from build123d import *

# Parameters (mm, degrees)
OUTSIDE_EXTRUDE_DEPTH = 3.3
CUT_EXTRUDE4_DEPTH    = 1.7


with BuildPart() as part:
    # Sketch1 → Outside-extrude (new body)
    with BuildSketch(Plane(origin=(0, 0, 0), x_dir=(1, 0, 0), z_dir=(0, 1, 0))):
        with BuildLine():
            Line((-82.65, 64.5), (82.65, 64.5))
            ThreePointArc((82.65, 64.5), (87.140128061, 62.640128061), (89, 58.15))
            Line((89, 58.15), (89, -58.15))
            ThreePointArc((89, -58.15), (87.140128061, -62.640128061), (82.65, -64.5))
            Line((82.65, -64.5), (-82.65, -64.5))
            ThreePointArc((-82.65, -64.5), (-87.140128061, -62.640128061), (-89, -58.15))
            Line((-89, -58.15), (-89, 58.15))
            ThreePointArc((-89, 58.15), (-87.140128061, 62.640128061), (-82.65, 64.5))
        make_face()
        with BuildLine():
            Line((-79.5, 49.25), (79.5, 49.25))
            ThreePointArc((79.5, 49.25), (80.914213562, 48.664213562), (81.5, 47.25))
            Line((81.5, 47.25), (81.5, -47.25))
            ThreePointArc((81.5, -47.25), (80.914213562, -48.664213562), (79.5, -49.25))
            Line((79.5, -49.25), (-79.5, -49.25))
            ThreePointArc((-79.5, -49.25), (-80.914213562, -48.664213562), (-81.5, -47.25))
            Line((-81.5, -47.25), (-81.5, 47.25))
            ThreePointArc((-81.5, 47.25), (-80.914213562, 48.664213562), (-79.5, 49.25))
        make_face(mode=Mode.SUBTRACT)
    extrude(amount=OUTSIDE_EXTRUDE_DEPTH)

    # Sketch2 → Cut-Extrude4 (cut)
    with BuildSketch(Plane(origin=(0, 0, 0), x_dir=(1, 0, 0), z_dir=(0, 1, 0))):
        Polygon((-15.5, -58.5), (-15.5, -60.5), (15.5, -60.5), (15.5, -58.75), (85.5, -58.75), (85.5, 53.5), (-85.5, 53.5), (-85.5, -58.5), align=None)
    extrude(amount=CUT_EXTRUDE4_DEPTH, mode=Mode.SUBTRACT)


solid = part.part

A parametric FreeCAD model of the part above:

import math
import FreeCAD as App
import Part
import Sketcher
Q = App.Units.Quantity

doc = App.newDocument("Part")
body = doc.addObject("PartDesign::Body", "Body")

# Sketch on XZ plane
sketch1 = doc.addObject("Sketcher::SketchObject", "Sketch")
body.addObject(sketch1)
sketch1.AttachmentSupport = (doc.XZ_Plane, [""])
sketch1.MapMode = "FlatFace"
sketch1.addGeometry(Part.LineSegment(App.Vector(82.65, -64.5, 0), App.Vector(-82.65, -64.5, 0)), False)
sketch1.addGeometry(Part.ArcOfCircle(Part.Circle(App.Vector(-82.65, -58.15, 0), App.Vector(0, 0, 1), 6.35), math.radians(180), math.radians(270)), False)
sketch1.addGeometry(Part.LineSegment(App.Vector(-89, -58.15, 0), App.Vector(-89, 58.15, 0)), False)
sketch1.addGeometry(Part.ArcOfCircle(Part.Circle(App.Vector(-82.65, 58.15, 0), App.Vector(0, 0, 1), 6.35), math.radians(90), math.radians(180)), False)
sketch1.addGeometry(Part.LineSegment(App.Vector(-82.65, 64.5, 0), App.Vector(82.65, 64.5, 0)), False)
sketch1.addGeometry(Part.ArcOfCircle(Part.Circle(App.Vector(82.65, 58.15, 0), App.Vector(0, 0, 1), 6.35), math.radians(0), math.radians(90)), False)
sketch1.addGeometry(Part.LineSegment(App.Vector(89, 58.15, 0), App.Vector(89, -58.15, 0)), False)
sketch1.addGeometry(Part.ArcOfCircle(Part.Circle(App.Vector(82.65, -58.15, 0), App.Vector(0, 0, 1), 6.35), math.radians(-90), math.radians(0)), False)
sketch1.addGeometry(Part.LineSegment(App.Vector(-79.5, -49.25, 0), App.Vector(79.5, -49.25, 0)), False)
sketch1.addGeometry(Part.ArcOfCircle(Part.Circle(App.Vector(79.5, -47.25, 0), App.Vector(0, 0, 1), 2), math.radians(-90), math.radians(0)), False)
sketch1.addGeometry(Part.LineSegment(App.Vector(81.5, -47.25, 0), App.Vector(81.5, 47.25, 0)), False)
sketch1.addGeometry(Part.ArcOfCircle(Part.Circle(App.Vector(79.5, 47.25, 0), App.Vector(0, 0, 1), 2), math.radians(0), math.radians(90)), False)
sketch1.addGeometry(Part.LineSegment(App.Vector(79.5, 49.25, 0), App.Vector(-79.5, 49.25, 0)), False)
sketch1.addGeometry(Part.ArcOfCircle(Part.Circle(App.Vector(-79.5, 47.25, 0), App.Vector(0, 0, 1), 2), math.radians(90), math.radians(180)), False)
sketch1.addGeometry(Part.LineSegment(App.Vector(-81.5, 47.25, 0), App.Vector(-81.5, -47.25, 0)), False)
sketch1.addGeometry(Part.ArcOfCircle(Part.Circle(App.Vector(-79.5, -47.25, 0), App.Vector(0, 0, 1), 2), math.radians(-180), math.radians(-90)), False)
sketch1.addConstraint(Sketcher.Constraint("Tangent", 0, 2, 1, 2))
sketch1.addConstraint(Sketcher.Constraint("Tangent", 1, 1, 2, 1))
sketch1.addConstraint(Sketcher.Constraint("Tangent", 2, 2, 3, 2))
sketch1.addConstraint(Sketcher.Constraint("Tangent", 3, 1, 4, 1))
sketch1.addConstraint(Sketcher.Constraint("Tangent", 4, 2, 5, 2))
sketch1.addConstraint(Sketcher.Constraint("Tangent", 5, 1, 6, 1))
sketch1.addConstraint(Sketcher.Constraint("Tangent", 6, 2, 7, 2))
sketch1.addConstraint(Sketcher.Constraint("Tangent", 7, 1, 0, 1))
sketch1.addConstraint(Sketcher.Constraint("Tangent", 8, 2, 9, 1))
sketch1.addConstraint(Sketcher.Constraint("Tangent", 9, 2, 10, 1))
sketch1.addConstraint(Sketcher.Constraint("Tangent", 10, 2, 11, 1))
sketch1.addConstraint(Sketcher.Constraint("Tangent", 11, 2, 12, 1))
sketch1.addConstraint(Sketcher.Constraint("Tangent", 12, 2, 13, 1))
sketch1.addConstraint(Sketcher.Constraint("Tangent", 13, 2, 14, 1))
sketch1.addConstraint(Sketcher.Constraint("Tangent", 14, 2, 15, 1))
sketch1.addConstraint(Sketcher.Constraint("Tangent", 15, 2, 8, 1))
sketch1.addConstraint(Sketcher.Constraint("Horizontal", 0))
sketch1.addConstraint(Sketcher.Constraint("Vertical", 2))
sketch1.addConstraint(Sketcher.Constraint("Horizontal", 4))
sketch1.addConstraint(Sketcher.Constraint("Vertical", 6))
sketch1.addConstraint(Sketcher.Constraint("Horizontal", 8))
sketch1.addConstraint(Sketcher.Constraint("Vertical", 10))
sketch1.addConstraint(Sketcher.Constraint("Horizontal", 12))
sketch1.addConstraint(Sketcher.Constraint("Vertical", 14))
sketch1.addConstraint(Sketcher.Constraint("Equal", 1, 3))
sketch1.addConstraint(Sketcher.Constraint("Equal", 3, 5))
sketch1.addConstraint(Sketcher.Constraint("Equal", 5, 7))
sketch1.addConstraint(Sketcher.Constraint("Equal", 9, 11))
sketch1.addConstraint(Sketcher.Constraint("Equal", 11, 13))
sketch1.addConstraint(Sketcher.Constraint("Equal", 13, 15))
sketch1.addConstraint(Sketcher.Constraint("Symmetric", 1, 3, 5, 3, -1, 1))
sketch1.addConstraint(Sketcher.Constraint("Symmetric", 9, 3, 13, 3, -1, 1))
sketch1.addConstraint(Sketcher.Constraint("Radius", 9, Q("2 mm")))
sketch1.addConstraint(Sketcher.Constraint("DistanceX", 8, 1, 8, 2, Q("159 mm")))
sketch1.addConstraint(Sketcher.Constraint("Radius", 1, Q("6.35 mm")))
sketch1.addConstraint(Sketcher.Constraint("DistanceX", 0, 2, 0, 1, Q("165.3 mm")))
sketch1.addConstraint(Sketcher.Constraint("DistanceY", 2, 1, 2, 2, Q("116.3 mm")))
sketch1.addConstraint(Sketcher.Constraint("DistanceY", 10, 1, 10, 2, Q("94.5 mm")))
pad1 = doc.addObject("PartDesign::Pad", "Pad")
body.addObject(pad1)
pad1.Profile = sketch1
pad1.Length = 3.3
pad1.Reversed = True

# Sketch on XZ plane
sketch2 = doc.addObject("Sketcher::SketchObject", "Sketch001")
body.addObject(sketch2)
sketch2.AttachmentSupport = (doc.XZ_Plane, [""])
sketch2.MapMode = "FlatFace"
sketch2.addGeometry(Part.LineSegment(App.Vector(-15.5, 58.5, 0), App.Vector(-15.5, 60.5, 0)), False)
sketch2.addGeometry(Part.LineSegment(App.Vector(-15.5, 60.5, 0), App.Vector(15.5, 60.5, 0)), False)
sketch2.addGeometry(Part.LineSegment(App.Vector(15.5, 60.5, 0), App.Vector(15.5, 58.75, 0)), False)
sketch2.addGeometry(Part.LineSegment(App.Vector(15.5, 58.75, 0), App.Vector(85.5, 58.75, 0)), False)
sketch2.addGeometry(Part.LineSegment(App.Vector(85.5, 58.75, 0), App.Vector(85.5, -53.5, 0)), False)
sketch2.addGeometry(Part.LineSegment(App.Vector(85.5, -53.5, 0), App.Vector(-85.5, -53.5, 0)), False)
sketch2.addGeometry(Part.LineSegment(App.Vector(-85.5, -53.5, 0), App.Vector(-85.5, 58.5, 0)), False)
sketch2.addGeometry(Part.LineSegment(App.Vector(-85.5, 58.5, 0), App.Vector(-15.5, 58.5, 0)), False)
sketch2.addConstraint(Sketcher.Constraint("Coincident", 0, 2, 1, 1))
sketch2.addConstraint(Sketcher.Constraint("Coincident", 1, 2, 2, 1))
sketch2.addConstraint(Sketcher.Constraint("Coincident", 2, 2, 3, 1))
sketch2.addConstraint(Sketcher.Constraint("Coincident", 3, 2, 4, 1))
sketch2.addConstraint(Sketcher.Constraint("Coincident", 4, 2, 5, 1))
sketch2.addConstraint(Sketcher.Constraint("Coincident", 5, 2, 6, 1))
sketch2.addConstraint(Sketcher.Constraint("Coincident", 6, 2, 7, 1))
sketch2.addConstraint(Sketcher.Constraint("Coincident", 7, 2, 0, 1))
sketch2.addConstraint(Sketcher.Constraint("Vertical", 0))
sketch2.addConstraint(Sketcher.Constraint("Horizontal", 1))
sketch2.addConstraint(Sketcher.Constraint("Vertical", 2))
sketch2.addConstraint(Sketcher.Constraint("Horizontal", 3))
sketch2.addConstraint(Sketcher.Constraint("Vertical", 4))
sketch2.addConstraint(Sketcher.Constraint("Horizontal", 5))
sketch2.addConstraint(Sketcher.Constraint("Vertical", 6))
sketch2.addConstraint(Sketcher.Constraint("Horizontal", 7))
sketch2.addConstraint(Sketcher.Constraint("Equal", 3, 7))
sketch2.addConstraint(Sketcher.Constraint("DistanceX", 1, 1, 1, 2, Q("31 mm")))
sketch2.addConstraint(Sketcher.Constraint("DistanceX", 3, 1, 3, 2, Q("70 mm")))
sketch2.addConstraint(Sketcher.Constraint("DistanceY", 0, 1, 0, 2, Q("2 mm")))
sketch2.addConstraint(Sketcher.Constraint("DistanceY", 6, 1, 6, 2, Q("112 mm")))
sketch2.addConstraint(Sketcher.Constraint("DistanceY", 2, 2, 2, 1, Q("1.75 mm")))
sketch2.addConstraint(Sketcher.Constraint("DistanceX", 0, 2, -1, 1, Q("15.5 mm")))
sketch2.addConstraint(Sketcher.Constraint("DistanceY", -1, 1, 0, 2, Q("60.5 mm")))
pocket1 = doc.addObject("PartDesign::Pocket", "Pocket")
body.addObject(pocket1)
pocket1.Profile = sketch2
pocket1.Length = 1.7

doc.recompute()
